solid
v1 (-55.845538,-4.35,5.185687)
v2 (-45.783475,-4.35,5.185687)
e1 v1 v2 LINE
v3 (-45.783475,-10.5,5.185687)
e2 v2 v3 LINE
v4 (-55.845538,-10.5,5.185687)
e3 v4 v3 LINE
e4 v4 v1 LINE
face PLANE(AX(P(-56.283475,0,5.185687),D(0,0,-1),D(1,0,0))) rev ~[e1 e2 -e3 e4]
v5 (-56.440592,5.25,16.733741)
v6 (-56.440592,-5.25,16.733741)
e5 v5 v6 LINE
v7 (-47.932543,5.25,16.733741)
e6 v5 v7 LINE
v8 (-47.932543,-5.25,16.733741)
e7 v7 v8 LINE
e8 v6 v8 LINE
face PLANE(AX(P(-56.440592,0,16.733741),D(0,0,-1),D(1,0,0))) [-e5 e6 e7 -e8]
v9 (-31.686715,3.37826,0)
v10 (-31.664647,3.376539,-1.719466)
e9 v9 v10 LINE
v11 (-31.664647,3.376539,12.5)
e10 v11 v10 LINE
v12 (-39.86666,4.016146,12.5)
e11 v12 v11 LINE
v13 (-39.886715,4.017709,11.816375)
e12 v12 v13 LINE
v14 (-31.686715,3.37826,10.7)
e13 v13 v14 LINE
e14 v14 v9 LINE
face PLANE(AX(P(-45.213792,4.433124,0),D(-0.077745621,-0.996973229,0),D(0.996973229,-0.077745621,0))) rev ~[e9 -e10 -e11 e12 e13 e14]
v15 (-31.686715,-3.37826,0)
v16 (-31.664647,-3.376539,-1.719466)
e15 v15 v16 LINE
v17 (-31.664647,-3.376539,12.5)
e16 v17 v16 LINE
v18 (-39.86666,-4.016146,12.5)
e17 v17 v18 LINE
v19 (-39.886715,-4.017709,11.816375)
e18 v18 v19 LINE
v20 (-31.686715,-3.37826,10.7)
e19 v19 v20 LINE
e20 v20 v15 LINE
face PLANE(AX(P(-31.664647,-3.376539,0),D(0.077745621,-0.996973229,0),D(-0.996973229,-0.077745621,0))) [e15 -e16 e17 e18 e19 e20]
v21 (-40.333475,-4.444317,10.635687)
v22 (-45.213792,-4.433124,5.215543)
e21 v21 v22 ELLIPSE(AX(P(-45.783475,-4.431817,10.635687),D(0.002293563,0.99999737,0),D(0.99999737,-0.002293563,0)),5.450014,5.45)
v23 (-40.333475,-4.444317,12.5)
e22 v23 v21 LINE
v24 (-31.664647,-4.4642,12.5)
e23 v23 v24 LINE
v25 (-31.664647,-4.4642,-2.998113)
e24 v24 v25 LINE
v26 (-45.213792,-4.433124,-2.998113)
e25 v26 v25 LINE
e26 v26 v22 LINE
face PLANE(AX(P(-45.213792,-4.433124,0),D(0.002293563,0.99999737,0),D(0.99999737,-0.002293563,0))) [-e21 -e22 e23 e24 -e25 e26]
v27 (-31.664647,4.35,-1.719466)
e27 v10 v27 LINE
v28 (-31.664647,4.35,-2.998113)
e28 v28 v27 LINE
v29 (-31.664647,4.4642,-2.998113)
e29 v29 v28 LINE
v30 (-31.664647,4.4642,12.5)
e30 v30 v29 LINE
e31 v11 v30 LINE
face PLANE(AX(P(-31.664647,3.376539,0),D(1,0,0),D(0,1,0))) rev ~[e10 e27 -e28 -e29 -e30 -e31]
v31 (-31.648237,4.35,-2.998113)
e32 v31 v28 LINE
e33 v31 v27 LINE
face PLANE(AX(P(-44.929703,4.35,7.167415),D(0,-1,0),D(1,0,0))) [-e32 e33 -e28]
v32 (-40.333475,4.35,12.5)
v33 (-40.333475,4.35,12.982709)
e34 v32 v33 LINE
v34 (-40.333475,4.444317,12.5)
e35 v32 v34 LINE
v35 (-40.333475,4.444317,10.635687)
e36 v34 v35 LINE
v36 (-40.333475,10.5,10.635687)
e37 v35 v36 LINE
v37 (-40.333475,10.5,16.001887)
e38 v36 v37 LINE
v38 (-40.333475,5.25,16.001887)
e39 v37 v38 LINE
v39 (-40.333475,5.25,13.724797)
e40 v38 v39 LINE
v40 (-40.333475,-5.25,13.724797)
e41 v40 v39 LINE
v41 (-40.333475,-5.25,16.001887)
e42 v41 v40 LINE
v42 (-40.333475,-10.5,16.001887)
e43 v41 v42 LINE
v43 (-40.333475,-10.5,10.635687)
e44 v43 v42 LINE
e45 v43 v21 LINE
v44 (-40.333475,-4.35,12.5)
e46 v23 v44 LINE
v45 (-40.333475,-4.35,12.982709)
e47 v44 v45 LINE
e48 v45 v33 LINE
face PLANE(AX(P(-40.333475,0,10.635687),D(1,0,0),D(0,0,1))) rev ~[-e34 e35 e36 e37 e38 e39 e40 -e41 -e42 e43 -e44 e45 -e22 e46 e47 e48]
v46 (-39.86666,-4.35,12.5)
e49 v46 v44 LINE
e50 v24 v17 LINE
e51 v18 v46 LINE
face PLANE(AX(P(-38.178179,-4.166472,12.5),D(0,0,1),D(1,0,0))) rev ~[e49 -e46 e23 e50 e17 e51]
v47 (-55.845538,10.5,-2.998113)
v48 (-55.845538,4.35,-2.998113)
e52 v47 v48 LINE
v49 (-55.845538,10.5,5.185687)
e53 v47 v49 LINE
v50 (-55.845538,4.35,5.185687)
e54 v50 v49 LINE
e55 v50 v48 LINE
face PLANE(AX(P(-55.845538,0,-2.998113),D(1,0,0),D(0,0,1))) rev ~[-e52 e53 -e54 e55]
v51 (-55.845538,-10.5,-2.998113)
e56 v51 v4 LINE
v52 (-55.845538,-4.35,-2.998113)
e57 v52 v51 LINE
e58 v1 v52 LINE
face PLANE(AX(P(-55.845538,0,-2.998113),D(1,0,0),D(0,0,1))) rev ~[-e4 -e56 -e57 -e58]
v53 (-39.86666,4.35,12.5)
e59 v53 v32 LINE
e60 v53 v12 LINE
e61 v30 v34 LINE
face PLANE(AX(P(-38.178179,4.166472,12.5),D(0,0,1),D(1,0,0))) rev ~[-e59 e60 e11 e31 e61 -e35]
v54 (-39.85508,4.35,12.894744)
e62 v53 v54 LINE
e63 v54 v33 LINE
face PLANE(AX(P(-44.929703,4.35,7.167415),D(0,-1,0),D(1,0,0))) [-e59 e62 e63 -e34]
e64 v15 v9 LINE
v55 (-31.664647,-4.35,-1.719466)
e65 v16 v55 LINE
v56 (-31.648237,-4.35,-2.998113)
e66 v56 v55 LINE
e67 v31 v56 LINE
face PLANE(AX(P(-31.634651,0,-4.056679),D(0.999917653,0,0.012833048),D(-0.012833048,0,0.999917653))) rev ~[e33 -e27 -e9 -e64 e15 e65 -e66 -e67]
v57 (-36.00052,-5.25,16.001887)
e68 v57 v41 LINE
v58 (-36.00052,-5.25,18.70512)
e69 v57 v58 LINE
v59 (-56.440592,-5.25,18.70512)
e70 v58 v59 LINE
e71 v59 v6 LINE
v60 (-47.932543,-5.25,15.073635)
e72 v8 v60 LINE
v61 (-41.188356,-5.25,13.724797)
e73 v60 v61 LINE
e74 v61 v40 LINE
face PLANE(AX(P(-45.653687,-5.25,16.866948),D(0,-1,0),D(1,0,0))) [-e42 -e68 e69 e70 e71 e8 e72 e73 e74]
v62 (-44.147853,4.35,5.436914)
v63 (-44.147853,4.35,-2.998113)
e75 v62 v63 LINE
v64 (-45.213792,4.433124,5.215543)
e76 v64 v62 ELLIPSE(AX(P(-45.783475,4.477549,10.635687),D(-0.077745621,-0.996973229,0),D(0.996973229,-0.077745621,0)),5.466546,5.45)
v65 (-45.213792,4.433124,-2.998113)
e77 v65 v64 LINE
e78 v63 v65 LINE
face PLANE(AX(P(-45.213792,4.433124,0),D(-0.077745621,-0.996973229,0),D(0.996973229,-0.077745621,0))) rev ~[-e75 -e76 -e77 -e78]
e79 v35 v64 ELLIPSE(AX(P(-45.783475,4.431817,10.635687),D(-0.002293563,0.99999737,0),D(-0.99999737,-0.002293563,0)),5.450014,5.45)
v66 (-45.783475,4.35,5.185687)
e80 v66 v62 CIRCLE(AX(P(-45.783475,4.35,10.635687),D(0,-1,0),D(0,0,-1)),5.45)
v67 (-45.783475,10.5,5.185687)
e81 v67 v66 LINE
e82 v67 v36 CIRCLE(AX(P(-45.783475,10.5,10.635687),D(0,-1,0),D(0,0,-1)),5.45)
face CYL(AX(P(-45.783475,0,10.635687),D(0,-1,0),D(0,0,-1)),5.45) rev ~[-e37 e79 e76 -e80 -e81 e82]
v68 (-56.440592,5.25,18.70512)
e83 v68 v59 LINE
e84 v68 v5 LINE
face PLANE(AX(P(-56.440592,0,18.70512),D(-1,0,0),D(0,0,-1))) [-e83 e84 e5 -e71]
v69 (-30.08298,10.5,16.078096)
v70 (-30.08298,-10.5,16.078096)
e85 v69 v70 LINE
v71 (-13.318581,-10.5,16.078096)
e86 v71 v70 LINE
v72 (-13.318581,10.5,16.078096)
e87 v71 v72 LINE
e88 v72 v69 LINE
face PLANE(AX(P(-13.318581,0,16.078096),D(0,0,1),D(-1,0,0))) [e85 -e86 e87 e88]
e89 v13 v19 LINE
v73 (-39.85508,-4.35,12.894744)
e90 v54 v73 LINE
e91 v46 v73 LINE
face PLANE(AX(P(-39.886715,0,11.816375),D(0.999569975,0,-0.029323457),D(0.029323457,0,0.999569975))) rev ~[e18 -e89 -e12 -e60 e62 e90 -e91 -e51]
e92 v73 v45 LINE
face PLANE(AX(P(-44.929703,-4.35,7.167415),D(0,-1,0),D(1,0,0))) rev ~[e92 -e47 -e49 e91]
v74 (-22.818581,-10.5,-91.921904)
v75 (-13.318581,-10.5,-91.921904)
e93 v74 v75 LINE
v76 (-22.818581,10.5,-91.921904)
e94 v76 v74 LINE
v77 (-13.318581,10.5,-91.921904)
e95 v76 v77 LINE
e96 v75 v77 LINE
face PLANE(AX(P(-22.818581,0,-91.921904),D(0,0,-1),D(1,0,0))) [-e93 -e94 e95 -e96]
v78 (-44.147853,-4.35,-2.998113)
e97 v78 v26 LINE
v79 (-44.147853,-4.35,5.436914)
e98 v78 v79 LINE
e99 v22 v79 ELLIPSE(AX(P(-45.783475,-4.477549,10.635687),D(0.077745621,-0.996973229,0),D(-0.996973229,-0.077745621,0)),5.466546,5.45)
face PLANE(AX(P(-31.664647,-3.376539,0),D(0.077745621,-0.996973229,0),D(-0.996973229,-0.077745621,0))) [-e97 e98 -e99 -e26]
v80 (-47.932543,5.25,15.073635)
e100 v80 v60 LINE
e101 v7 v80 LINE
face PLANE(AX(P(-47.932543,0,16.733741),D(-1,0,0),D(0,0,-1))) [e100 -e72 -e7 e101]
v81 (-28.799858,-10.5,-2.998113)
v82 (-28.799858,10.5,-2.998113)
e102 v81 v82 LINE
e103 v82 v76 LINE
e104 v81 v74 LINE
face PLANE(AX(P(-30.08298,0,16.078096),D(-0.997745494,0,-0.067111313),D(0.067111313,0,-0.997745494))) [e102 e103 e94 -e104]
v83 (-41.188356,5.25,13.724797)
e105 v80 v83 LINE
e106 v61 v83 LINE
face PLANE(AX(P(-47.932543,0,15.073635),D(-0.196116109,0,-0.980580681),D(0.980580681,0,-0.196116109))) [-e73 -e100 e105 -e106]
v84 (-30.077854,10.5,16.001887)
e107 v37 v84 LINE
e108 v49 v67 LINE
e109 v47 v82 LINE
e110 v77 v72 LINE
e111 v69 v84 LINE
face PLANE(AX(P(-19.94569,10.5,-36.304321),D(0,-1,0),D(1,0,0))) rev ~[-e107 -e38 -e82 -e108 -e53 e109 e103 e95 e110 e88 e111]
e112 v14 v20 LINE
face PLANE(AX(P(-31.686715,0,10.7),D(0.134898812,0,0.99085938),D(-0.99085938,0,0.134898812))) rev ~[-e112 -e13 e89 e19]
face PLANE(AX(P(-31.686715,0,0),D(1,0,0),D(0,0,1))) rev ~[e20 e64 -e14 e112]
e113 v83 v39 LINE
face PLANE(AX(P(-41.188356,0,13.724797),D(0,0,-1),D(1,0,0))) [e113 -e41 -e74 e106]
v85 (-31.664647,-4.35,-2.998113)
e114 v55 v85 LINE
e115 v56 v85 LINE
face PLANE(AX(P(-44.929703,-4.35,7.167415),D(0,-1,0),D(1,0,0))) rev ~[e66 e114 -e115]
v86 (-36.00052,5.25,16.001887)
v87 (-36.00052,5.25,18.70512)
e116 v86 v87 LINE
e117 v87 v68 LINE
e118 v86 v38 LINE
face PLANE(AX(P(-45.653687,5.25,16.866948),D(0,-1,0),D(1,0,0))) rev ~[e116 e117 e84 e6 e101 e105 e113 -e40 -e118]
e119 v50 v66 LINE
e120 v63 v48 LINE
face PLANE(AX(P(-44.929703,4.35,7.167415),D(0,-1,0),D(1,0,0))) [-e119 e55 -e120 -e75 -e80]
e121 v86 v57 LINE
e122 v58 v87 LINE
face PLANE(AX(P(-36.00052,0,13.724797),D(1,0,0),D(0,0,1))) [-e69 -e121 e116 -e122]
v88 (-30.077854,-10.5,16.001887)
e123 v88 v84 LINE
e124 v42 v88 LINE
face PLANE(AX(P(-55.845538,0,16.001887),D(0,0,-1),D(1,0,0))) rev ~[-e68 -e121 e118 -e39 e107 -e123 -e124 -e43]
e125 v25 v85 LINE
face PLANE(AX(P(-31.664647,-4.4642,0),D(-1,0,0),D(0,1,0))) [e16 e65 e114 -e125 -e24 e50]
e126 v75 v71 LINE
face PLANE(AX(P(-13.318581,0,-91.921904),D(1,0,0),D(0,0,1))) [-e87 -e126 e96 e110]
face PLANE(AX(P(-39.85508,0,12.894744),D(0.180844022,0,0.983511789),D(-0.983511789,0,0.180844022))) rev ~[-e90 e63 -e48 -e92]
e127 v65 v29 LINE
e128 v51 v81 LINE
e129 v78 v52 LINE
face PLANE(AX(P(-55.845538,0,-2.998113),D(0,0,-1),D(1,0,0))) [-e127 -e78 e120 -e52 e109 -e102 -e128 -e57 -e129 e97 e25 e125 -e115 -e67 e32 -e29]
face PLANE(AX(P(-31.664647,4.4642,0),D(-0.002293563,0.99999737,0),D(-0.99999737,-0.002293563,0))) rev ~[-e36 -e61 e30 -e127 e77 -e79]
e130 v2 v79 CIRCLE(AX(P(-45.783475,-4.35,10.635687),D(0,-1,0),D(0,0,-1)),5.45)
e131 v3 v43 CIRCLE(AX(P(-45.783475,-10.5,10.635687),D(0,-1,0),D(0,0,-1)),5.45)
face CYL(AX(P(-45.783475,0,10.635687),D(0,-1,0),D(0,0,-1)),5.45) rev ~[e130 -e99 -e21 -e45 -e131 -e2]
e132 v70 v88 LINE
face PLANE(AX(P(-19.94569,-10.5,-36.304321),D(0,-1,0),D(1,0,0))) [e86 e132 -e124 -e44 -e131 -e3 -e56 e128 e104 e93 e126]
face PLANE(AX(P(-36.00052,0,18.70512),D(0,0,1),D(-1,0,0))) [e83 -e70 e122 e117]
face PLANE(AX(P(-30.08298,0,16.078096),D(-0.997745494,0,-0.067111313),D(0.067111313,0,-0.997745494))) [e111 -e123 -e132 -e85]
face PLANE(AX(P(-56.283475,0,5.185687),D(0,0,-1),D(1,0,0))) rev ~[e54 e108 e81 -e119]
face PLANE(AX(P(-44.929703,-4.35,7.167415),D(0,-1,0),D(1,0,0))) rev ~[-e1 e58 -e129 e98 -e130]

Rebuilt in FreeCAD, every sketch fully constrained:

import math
import FreeCAD as App
import Part
import Sketcher
from FreeCAD import Vector


def add_polygon(sketch, points):
    """Adds a closed chain of lines whose ends are joined by coincident constraints."""
    first, n = sketch.GeometryCount, len(points)
    for a, b in zip(points, points[1:] + points[:1]):
        sketch.addGeometry(Part.LineSegment(App.Vector(*a, 0), App.Vector(*b, 0)), False)
    for i in range(n):
        sketch.addConstraint(Sketcher.Constraint("Coincident", first + i, 2, first + (i + 1) % n, 1))

doc = App.newDocument("Part")
body = doc.addObject("PartDesign::Body", "Body")

sketch1 = doc.addObject("Sketcher::SketchObject", "Sketch")
body.addObject(sketch1)
sketch1.AttachmentSupport = (doc.XZ_Plane, [""])
sketch1.MapMode = "FlatFace"
add_polygon(sketch1, [(-56, 16), (-56, -3), (-26, -3), (-26, 16)])
sketch1.addConstraint([
    Sketcher.Constraint("Vertical", 0),
    Sketcher.Constraint("Horizontal", 1),
    Sketcher.Constraint("Vertical", 2),
    Sketcher.Constraint("Horizontal", 3),
    Sketcher.Constraint("DistanceX", 1, 1, 1, 2, 30.0),
    Sketcher.Constraint("DistanceY", 0, 2, 0, 1, 19.0),
    Sketcher.Constraint("DistanceX", 0, 2, -1, 1, 55.845538),
    Sketcher.Constraint("DistanceY", 0, 2, -1, 1, 2.998113),
])
pad1 = doc.addObject("PartDesign::Pad", "Pad")
body.addObject(pad1)
pad1.Profile = sketch1
pad1.Length = 21
pad1.Midplane = True

sketch2 = doc.addObject("Sketcher::SketchObject", "Sketch001")
body.addObject(sketch2)
sketch2.AttachmentSupport = (doc.XZ_Plane, [""])
sketch2.MapMode = "FlatFace"
add_polygon(sketch2, [(-31.7, 0), (-31.7, 10.7), (-39.9, 11.8), (-39.9, 12.9), (-48.6, 14.5), (-48.6, 16.1), (-56.3, 16.1), (-56.3, -4.1), (-31.6, -4.1)])
sketch2.addConstraint([
    Sketcher.Constraint("Vertical", 0),
    Sketcher.Constraint("Horizontal", 5),
    Sketcher.Constraint("Vertical", 6),
    Sketcher.Constraint("Horizontal", 7),
    Sketcher.Constraint("PointOnObject", 8, 2, -1),
    Sketcher.Constraint("DistanceX", 5, 2, 5, 1, 7.7),
    Sketcher.Constraint("DistanceY", 0, 1, 0, 2, 10.7),
    Sketcher.Constraint("DistanceY", -1, 1, 4, 2, 16.1),
    Sketcher.Constraint("DistanceX", 1, 2, 0, 2, 8.2),
    Sketcher.Constraint("DistanceX", 4, 2, 1, 2, 8.7),
    Sketcher.Constraint("DistanceY", 6, 2, 6, 1, 20.156679),
    Sketcher.Constraint("DistanceX", 7, 1, 7, 2, 24.652064),
    Sketcher.Constraint("DistanceX", 2, 2, -1, 1, 39.85508),
    Sketcher.Constraint("DistanceX", 7, 2, -1, 1, 31.634651),
    Sketcher.Constraint("DistanceY", 1, 2, 2, 2, 1.078369),
    Sketcher.Constraint("DistanceY", 6, 2, 3, 2, 18.554051),
    Sketcher.Constraint("Distance", 1, 8.275645),
    Sketcher.Constraint("Distance", 3, 8.861935),
])
pocket1 = doc.addObject("PartDesign::Pocket", "Pocket")
body.addObject(pocket1)
pocket1.Profile = sketch2
pocket1.Length = 8.7
pocket1.Midplane = True

sketch3 = doc.addObject("Sketcher::SketchObject", "Sketch002")
body.addObject(sketch3)
sketch3.AttachmentSupport = (doc.XY_Plane, [""])
sketch3.MapMode = "FlatFace"
add_polygon(sketch3, [(-31.7, -3.4), (-45.2, -4.4), (-31.7, -4.5)])
add_polygon(sketch3, [(-31.7, 4.5), (-45.2, 4.4), (-31.7, 3.4)])
sketch3.addConstraint([
    Sketcher.Constraint("Vertical", 2),
    Sketcher.Constraint("Vertical", 5),
    Sketcher.Constraint("Symmetric", 0, 2, 3, 2, -1),
    Sketcher.Constraint("Symmetric", 2, 2, 4, 2, -1),
    Sketcher.Constraint("Equal", 2, 5),
    Sketcher.Constraint("DistanceY", 2, 1, 2, 2, 1.087661),
    Sketcher.Constraint("DistanceY", 1, 2, -1, 1, 4.4642),
    Sketcher.Constraint("Distance", 0, 13.59028),
    Sketcher.Constraint("Distance", 1, 13.549181),
    Sketcher.Constraint("DistanceX", 0, 2, -1, 1, 45.213792),
])
pocket2 = doc.addObject("PartDesign::Pocket", "Pocket001")
body.addObject(pocket2)
pocket2.Profile = sketch3
pocket2.Length = 25
pocket2.Midplane = True

sketch4 = doc.addObject("Sketcher::SketchObject", "Sketch003")
body.addObject(sketch4)
sketch4.AttachmentSupport = (doc.XZ_Plane, [""])
sketch4.MapMode = "FlatFace"
sketch4.addGeometry([
    Part.LineSegment(Vector(-56, 16, 0), Vector(-56, 5, 0)),
    Part.LineSegment(Vector(-56, 5, 0), Vector(-46, 5, 0)),
    Part.ArcOfCircle(Part.Circle(Vector(-46, 11, 0), Vector(0, 0, 1), 5), math.radians(-90), math.radians(0)),
    Part.LineSegment(Vector(-40, 11, 0), Vector(-40, 16, 0)),
    Part.LineSegment(Vector(-40, 16, 0), Vector(-56, 16, 0)),
], False)
sketch4.addConstraint([
    Sketcher.Constraint("Coincident", 0, 2, 1, 1),
    Sketcher.Constraint("Tangent", 1, 2, 2, 1),
    Sketcher.Constraint("Tangent", 2, 2, 3, 1),
    Sketcher.Constraint("Coincident", 3, 2, 4, 1),
    Sketcher.Constraint("Coincident", 4, 2, 0, 1),
    Sketcher.Constraint("Vertical", 0),
    Sketcher.Constraint("Horizontal", 1),
    Sketcher.Constraint("Vertical", 3),
    Sketcher.Constraint("Horizontal", 4),
    Sketcher.Constraint("Radius", 2, 5.45),
    Sketcher.Constraint("DistanceX", 1, 1, 1, 2, 10.5),
    Sketcher.Constraint("DistanceY", 0, 2, 0, 1, 10.9),
    Sketcher.Constraint("DistanceX", 2, 3, -1, 1, 45.783475),
    Sketcher.Constraint("DistanceY", -1, 1, 2, 3, 10.635687),
])
pocket3 = doc.addObject("PartDesign::Pocket", "Pocket002")
body.addObject(pocket3)
pocket3.Profile = sketch4
pocket3.Length = 21
pocket3.Midplane = True

sketch5 = doc.addObject("Sketcher::SketchObject", "Sketch004")
body.addObject(sketch5)
sketch5.AttachmentSupport = (doc.XZ_Plane, [""])
sketch5.MapMode = "FlatFace"
add_polygon(sketch5, [(-36, 18.7), (-56.4, 18.7), (-56.4, 16.7), (-47.9, 16.7), (-47.9, 15.1), (-41.2, 13.7), (-36, 13.7)])
sketch5.addConstraint([
    Sketcher.Constraint("Horizontal", 0),
    Sketcher.Constraint("Vertical", 1),
    Sketcher.Constraint("Horizontal", 2),
    Sketcher.Constraint("Vertical", 3),
    Sketcher.Constraint("Horizontal", 5),
    Sketcher.Constraint("Vertical", 6),
    Sketcher.Constraint("DistanceX", 0, 2, 0, 1, 20.440072),
    Sketcher.Constraint("DistanceX", 2, 1, 2, 2, 8.508049),
    Sketcher.Constraint("DistanceY", 1, 2, 1, 1, 1.971379),
    Sketcher.Constraint("Distance", 4, 6.877749),
    Sketcher.Constraint("DistanceX", 5, 1, 5, 2, 5.187836),
    Sketcher.Constraint("DistanceY", 3, 2, 3, 1, 1.660107),
    Sketcher.Constraint("DistanceX", 0, 2, -1, 1, 56.440592),
    Sketcher.Constraint("DistanceY", -1, 1, 0, 2, 18.70512),
])
pad2 = doc.addObject("PartDesign::Pad", "Pad001")
body.addObject(pad2)
pad2.Profile = sketch5
pad2.Length = 10.5
pad2.Midplane = True

sketch6 = doc.addObject("Sketcher::SketchObject", "Sketch005")
body.addObject(sketch6)
sketch6.AttachmentSupport = (doc.XZ_Plane, [""])
sketch6.MapMode = "FlatFace"
add_polygon(sketch6, [(-13, 16), (-30, 16), (-23, -92), (-13, -92)])
sketch6.addConstraint([
    Sketcher.Constraint("Horizontal", 0),
    Sketcher.Constraint("Horizontal", 2),
    Sketcher.Constraint("Vertical", 3),
    Sketcher.Constraint("DistanceY", 3, 1, 3, 2, 108.0),
    Sketcher.Constraint("DistanceX", 2, 1, 2, 2, 9.5),
    Sketcher.Constraint("DistanceX", 0, 2, 0, 1, 16.764399),
    Sketcher.Constraint("DistanceX", 0, 2, -1, 1, 30.08298),
    Sketcher.Constraint("DistanceY", -1, 1, 0, 2, 16.078096),
])
pad3 = doc.addObject("PartDesign::Pad", "Pad002")
body.addObject(pad3)
pad3.Profile = sketch6
pad3.Length = 21
pad3.Midplane = True

doc.recompute()
